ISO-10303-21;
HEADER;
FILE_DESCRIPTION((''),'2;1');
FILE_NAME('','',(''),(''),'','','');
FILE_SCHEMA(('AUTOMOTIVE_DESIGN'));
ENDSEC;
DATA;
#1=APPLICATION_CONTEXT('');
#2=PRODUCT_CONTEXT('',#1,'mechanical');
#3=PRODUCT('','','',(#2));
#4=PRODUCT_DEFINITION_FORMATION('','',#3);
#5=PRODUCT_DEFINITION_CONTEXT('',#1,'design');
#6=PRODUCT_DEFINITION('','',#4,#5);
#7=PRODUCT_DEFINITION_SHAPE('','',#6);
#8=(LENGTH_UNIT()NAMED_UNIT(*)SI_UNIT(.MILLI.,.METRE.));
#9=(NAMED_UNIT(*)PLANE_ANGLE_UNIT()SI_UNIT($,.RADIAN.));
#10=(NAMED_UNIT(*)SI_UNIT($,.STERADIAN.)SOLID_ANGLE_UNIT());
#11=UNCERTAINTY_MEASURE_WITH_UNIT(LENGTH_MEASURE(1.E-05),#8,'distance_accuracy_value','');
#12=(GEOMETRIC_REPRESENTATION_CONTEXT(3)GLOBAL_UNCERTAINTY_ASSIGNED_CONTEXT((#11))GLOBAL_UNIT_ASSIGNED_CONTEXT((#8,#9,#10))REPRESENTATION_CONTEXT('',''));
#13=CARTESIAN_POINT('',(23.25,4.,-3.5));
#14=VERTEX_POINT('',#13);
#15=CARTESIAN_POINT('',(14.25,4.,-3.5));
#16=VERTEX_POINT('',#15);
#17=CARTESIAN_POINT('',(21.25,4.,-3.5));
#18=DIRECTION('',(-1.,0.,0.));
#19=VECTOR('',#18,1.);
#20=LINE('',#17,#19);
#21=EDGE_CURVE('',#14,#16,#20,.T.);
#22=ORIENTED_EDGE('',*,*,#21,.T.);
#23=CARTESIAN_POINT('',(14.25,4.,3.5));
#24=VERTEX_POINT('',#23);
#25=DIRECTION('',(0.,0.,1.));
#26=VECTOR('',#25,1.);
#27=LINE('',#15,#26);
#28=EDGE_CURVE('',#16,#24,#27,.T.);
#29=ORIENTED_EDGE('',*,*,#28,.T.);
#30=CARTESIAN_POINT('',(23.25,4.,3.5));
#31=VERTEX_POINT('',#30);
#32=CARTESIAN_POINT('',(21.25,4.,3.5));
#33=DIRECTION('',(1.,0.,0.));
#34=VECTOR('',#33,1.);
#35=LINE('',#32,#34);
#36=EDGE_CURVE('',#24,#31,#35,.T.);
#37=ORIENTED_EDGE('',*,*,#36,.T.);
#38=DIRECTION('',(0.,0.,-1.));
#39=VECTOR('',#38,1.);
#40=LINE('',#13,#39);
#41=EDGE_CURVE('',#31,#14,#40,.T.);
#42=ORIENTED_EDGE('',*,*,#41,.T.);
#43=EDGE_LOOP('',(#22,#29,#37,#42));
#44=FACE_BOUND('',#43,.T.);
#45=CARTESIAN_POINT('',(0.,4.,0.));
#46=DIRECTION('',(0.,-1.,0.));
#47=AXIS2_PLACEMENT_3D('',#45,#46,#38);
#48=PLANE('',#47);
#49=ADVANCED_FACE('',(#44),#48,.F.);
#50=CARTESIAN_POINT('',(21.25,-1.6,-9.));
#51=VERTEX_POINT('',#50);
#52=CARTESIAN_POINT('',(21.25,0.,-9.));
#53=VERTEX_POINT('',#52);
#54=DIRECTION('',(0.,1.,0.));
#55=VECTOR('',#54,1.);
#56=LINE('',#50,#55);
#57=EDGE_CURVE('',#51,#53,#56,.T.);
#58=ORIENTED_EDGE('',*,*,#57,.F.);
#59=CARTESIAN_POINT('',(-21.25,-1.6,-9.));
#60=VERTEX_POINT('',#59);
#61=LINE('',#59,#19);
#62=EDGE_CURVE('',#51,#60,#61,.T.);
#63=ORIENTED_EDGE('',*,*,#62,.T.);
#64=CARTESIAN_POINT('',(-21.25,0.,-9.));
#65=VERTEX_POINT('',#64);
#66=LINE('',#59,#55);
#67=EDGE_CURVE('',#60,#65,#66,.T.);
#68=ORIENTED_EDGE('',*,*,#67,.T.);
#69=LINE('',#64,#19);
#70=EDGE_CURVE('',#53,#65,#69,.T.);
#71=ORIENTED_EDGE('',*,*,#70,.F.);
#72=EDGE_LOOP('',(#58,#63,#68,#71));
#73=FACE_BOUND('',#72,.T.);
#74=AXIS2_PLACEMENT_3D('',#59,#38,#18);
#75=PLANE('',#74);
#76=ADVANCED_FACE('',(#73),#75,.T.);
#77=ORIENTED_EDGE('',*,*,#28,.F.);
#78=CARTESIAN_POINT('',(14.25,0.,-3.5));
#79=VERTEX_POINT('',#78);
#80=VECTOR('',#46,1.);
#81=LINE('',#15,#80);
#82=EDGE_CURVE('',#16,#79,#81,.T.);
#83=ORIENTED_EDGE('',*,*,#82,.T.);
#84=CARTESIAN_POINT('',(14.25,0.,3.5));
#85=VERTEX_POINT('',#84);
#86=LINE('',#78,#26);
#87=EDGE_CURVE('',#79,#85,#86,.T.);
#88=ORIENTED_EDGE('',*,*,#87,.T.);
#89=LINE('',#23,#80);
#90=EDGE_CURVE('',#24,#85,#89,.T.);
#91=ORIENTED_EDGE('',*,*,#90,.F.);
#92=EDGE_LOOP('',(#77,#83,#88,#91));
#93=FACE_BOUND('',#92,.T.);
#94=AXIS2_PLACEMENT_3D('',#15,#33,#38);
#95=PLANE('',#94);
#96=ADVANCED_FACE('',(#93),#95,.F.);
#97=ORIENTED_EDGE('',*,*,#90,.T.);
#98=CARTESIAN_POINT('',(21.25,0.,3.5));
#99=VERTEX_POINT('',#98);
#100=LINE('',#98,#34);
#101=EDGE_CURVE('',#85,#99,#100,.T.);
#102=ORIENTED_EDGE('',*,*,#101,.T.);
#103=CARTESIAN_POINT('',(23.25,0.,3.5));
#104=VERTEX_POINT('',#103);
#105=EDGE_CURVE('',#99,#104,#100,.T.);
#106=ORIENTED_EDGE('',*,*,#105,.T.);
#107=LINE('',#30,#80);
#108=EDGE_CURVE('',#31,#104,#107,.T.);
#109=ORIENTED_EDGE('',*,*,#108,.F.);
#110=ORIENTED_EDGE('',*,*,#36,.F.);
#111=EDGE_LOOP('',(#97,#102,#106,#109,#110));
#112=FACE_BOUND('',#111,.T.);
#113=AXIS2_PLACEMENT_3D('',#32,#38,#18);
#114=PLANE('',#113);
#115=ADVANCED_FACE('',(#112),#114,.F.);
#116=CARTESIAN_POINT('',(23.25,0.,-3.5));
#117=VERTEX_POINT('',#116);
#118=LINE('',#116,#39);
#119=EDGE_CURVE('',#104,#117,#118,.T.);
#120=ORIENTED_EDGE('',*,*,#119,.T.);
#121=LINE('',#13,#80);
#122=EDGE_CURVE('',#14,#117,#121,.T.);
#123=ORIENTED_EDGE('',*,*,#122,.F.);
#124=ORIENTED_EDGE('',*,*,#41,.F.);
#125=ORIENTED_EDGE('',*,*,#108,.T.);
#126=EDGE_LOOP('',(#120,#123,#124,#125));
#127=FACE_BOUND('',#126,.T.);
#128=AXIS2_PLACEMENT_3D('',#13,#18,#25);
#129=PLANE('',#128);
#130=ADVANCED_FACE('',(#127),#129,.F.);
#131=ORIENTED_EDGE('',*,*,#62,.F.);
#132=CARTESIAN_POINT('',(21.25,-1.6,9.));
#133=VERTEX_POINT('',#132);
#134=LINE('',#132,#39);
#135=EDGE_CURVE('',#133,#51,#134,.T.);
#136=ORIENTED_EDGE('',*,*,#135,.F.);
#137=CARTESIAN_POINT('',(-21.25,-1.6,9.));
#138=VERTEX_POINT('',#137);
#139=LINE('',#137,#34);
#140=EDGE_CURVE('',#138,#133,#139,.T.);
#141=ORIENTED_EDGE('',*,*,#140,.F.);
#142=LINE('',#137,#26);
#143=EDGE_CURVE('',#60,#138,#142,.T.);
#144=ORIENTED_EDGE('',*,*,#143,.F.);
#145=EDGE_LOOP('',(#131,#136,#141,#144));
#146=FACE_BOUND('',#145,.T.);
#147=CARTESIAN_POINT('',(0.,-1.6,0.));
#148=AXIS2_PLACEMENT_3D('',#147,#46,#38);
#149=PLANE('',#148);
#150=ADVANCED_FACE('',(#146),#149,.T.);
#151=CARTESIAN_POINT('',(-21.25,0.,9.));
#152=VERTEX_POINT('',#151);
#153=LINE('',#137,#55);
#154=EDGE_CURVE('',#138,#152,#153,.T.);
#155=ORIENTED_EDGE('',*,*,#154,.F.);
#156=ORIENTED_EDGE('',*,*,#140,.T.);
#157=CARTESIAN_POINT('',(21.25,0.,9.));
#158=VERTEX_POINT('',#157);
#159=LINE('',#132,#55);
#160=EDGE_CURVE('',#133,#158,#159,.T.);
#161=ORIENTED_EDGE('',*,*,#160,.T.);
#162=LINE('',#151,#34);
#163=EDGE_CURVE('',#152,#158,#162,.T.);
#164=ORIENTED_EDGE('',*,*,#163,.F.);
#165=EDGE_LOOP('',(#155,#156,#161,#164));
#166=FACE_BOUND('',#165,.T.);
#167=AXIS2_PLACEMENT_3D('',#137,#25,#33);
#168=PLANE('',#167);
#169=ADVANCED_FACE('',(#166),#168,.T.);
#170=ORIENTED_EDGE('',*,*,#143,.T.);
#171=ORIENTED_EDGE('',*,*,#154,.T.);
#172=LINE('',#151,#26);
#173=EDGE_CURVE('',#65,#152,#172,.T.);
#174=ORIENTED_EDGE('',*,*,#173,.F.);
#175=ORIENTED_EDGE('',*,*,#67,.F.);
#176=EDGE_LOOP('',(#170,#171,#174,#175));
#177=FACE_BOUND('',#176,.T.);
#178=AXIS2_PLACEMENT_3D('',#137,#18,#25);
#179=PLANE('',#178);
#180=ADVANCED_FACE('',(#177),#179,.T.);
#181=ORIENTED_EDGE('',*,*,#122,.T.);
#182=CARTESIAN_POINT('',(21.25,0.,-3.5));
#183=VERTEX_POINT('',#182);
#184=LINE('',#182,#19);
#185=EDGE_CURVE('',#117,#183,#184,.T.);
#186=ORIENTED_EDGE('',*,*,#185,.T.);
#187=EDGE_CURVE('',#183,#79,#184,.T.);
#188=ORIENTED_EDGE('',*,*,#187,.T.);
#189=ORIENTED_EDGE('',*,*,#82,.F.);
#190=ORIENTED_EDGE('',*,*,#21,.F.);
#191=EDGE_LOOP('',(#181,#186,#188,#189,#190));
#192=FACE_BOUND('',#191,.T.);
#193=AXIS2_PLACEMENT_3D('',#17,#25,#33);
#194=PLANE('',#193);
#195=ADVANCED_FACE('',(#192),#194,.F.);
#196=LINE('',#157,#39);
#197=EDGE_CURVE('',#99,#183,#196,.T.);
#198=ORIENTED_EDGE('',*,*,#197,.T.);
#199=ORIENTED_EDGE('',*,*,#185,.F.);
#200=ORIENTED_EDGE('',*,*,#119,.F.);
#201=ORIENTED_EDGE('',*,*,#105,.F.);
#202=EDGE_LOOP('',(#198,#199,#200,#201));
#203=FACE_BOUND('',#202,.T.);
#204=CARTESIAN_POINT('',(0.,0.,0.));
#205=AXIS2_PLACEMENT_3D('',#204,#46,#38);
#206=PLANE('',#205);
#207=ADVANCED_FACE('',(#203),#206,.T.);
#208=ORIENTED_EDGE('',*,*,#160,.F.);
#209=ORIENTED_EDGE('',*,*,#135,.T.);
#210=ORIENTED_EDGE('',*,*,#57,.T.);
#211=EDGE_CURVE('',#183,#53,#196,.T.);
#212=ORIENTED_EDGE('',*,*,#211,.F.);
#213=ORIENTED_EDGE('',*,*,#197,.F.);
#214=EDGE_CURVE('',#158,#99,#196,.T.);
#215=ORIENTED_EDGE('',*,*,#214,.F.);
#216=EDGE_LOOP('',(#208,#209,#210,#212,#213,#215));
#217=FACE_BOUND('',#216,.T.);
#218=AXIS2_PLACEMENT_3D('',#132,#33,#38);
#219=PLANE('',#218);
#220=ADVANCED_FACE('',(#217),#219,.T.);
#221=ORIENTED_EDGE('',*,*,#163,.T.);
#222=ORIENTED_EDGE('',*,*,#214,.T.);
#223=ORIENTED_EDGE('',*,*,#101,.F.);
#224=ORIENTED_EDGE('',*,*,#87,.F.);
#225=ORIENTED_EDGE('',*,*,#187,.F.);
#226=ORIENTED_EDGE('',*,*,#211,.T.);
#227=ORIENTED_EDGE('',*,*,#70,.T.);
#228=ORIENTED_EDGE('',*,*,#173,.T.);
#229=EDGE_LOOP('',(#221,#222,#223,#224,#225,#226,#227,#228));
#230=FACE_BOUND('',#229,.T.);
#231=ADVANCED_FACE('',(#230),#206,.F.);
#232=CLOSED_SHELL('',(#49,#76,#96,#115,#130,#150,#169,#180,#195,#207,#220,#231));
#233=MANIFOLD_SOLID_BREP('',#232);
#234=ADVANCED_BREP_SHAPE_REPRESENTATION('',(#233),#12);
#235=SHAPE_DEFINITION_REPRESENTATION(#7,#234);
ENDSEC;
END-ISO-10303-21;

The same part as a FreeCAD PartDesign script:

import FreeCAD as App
import Part
import Sketcher

V = App.Vector

doc = App.newDocument("Part")
body = doc.addObject("PartDesign::Body", "Body")

# Sketch on XZ plane
sketch1 = body.newObject("Sketcher::SketchObject", "Sketch")
sketch1.AttachmentSupport = (doc.getObject("XZ_Plane"), [""])
sketch1.MapMode = "FlatFace"
sketch1.addGeometry([
    Part.LineSegment(V(-21, -9, 0), V(-21, 9, 0)),
    Part.LineSegment(V(-21, 9, 0), V(21, 9, 0)),
    Part.LineSegment(V(21, 9, 0), V(21, -9, 0)),
    Part.LineSegment(V(21, -9, 0), V(-21, -9, 0)),
], False)
sketch1.addConstraint([
    Sketcher.Constraint("Coincident", 0, 2, 1, 1),
    Sketcher.Constraint("Coincident", 1, 2, 2, 1),
    Sketcher.Constraint("Coincident", 2, 2, 3, 1),
    Sketcher.Constraint("Coincident", 3, 2, 0, 1),
    Sketcher.Constraint("Vertical", 0),
    Sketcher.Constraint("Horizontal", 1),
    Sketcher.Constraint("Vertical", 2),
    Sketcher.Constraint("Horizontal", 3),
    Sketcher.Constraint("Symmetric", 0, 2, 2, 2, -1, 1),
    Sketcher.Constraint("DistanceY", 0, 1, 0, 2, 18.0),
    Sketcher.Constraint("DistanceX", 1, 1, 1, 2, 42.5),
])
pad1 = body.newObject("PartDesign::Pad", "Pad")
pad1.Profile = sketch1
pad1.Length = 1.6

# Sketch on XZ plane
sketch2 = body.newObject("Sketcher::SketchObject", "Sketch001")
sketch2.AttachmentSupport = (doc.getObject("XZ_Plane"), [""])
sketch2.MapMode = "FlatFace"
sketch2.addGeometry([
    Part.LineSegment(V(23, -4, 0), V(14, -4, 0)),
    Part.LineSegment(V(14, -4, 0), V(14, 4, 0)),
    Part.LineSegment(V(14, 4, 0), V(23, 4, 0)),
    Part.LineSegment(V(23, 4, 0), V(23, -4, 0)),
], False)
sketch2.addConstraint([
    Sketcher.Constraint("Coincident", 0, 2, 1, 1),
    Sketcher.Constraint("Coincident", 1, 2, 2, 1),
    Sketcher.Constraint("Coincident", 2, 2, 3, 1),
    Sketcher.Constraint("Coincident", 3, 2, 0, 1),
    Sketcher.Constraint("Horizontal", 0),
    Sketcher.Constraint("Vertical", 1),
    Sketcher.Constraint("Horizontal", 2),
    Sketcher.Constraint("Vertical", 3),
    Sketcher.Constraint("DistanceX", 0, 2, 0, 1, 9.0),
    Sketcher.Constraint("DistanceY", 1, 1, 1, 2, 7.0),
    Sketcher.Constraint("DistanceY", 0, 2, -1, 1, 3.5),
    Sketcher.Constraint("DistanceX", -1, 1, 0, 2, 14.25),
])
pad2 = body.newObject("PartDesign::Pad", "Pad001")
pad2.Profile = sketch2
pad2.Length = 4
pad2.Reversed = True

doc.recompute()
